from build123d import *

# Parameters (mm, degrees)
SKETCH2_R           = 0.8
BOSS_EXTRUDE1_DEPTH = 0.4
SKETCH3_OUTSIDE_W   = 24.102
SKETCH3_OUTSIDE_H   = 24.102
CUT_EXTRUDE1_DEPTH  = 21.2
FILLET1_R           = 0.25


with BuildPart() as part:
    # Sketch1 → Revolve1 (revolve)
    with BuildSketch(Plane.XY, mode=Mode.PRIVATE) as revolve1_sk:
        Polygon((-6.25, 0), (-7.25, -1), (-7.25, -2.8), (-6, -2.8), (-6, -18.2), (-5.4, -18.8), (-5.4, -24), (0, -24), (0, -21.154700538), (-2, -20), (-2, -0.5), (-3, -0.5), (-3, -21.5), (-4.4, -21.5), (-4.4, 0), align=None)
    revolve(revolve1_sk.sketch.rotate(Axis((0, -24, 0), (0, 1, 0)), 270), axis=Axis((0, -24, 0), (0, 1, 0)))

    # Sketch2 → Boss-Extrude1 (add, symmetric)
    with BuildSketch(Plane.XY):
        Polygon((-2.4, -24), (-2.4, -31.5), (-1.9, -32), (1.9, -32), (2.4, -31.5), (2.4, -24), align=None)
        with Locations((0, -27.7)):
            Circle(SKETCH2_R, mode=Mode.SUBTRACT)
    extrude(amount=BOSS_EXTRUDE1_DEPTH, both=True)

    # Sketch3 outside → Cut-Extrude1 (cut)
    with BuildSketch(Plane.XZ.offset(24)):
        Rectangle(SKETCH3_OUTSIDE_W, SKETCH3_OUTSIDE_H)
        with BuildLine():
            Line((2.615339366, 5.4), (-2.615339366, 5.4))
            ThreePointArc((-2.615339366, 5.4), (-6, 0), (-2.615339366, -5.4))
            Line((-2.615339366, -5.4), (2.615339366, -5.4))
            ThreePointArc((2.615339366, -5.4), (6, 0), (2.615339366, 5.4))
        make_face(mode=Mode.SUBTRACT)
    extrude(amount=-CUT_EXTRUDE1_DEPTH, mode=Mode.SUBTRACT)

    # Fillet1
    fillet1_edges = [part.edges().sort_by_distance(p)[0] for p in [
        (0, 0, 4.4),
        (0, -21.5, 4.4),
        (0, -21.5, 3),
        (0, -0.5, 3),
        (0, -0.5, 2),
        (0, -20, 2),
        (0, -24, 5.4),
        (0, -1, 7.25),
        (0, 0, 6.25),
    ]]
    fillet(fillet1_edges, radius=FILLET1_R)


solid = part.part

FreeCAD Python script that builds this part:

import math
import FreeCAD as App
import Part
import Sketcher
from FreeCAD import Vector
Q = App.Units.Quantity


def edges_at(feature, points):
    """Names of the edges that pass closest to the given points."""
    edges = feature.Shape.Edges
    near = lambda p: min(range(len(edges)), key=lambda i: edges[i].distToShape(Part.Vertex(*p))[0])
    return sorted({f"Edge{near(p) + 1}" for p in points})


def add_polygon(sketch, points):
    """Adds a closed chain of lines whose ends are joined by coincident constraints."""
    first, n = sketch.GeometryCount, len(points)
    for a, b in zip(points, points[1:] + points[:1]):
        sketch.addGeometry(Part.LineSegment(App.Vector(*a, 0), App.Vector(*b, 0)), False)
    for i in range(n):
        sketch.addConstraint(Sketcher.Constraint("Coincident", first + i, 2, first + (i + 1) % n, 1))

doc = App.newDocument("Part")
params = doc.addObject("Spreadsheet::Sheet", "Params")
for row, (alias, value) in enumerate([
    ("sketch1_width", "1 mm"),
    ("sketch1_height", "21 mm"),
    ("sketch1_width2", "5.4 mm"),
    ("sketch1_width3", "1.4 mm"),
    ("sketch1_height2", "1.8 mm"),
    ("revolution_angle", "360 deg"),
    ("sketch2_diameter", "1.6 mm"),
    ("sketch2_width", "3.8 mm"),
    ("sketch2_width2", "4.8 mm"),
    ("sketch2_height", "7.5 mm"),
    ("pad1_length", "0.8 mm"),
    ("sketch3_radius", "6 mm"),
    ("pocket1_length", "21.2 mm"),
    ("fillet_radius", "0.25 mm"),
], start=1):
    params.set(f"A{row}", alias)
    params.set(f"B{row}", "=" + value)
    params.setAlias(f"B{row}", alias)

body = doc.addObject("PartDesign::Body", "Body")

sketch1 = body.newObject("Sketcher::SketchObject", "Sketch")
sketch1.AttachmentSupport = (doc.getObject("XY_Plane"), [""])
sketch1.MapMode = "FlatFace"
add_polygon(sketch1, [(-6.25, 0), (-7.25, -1), (-7.25, -2.8), (-6, -2.8), (-6, -18.2), (-5.4, -18.8), (-5.4, -24), (0, -24), (0, -21.154701), (-2, -20), (-2, -0.5), (-3, -0.5), (-3, -21.5), (-4.4, -21.5), (-4.4, 0)])
sketch1.addConstraint(Sketcher.Constraint("Vertical", 1))
sketch1.addConstraint(Sketcher.Constraint("Horizontal", 2))
sketch1.addConstraint(Sketcher.Constraint("Vertical", 3))
sketch1.addConstraint(Sketcher.Constraint("Vertical", 5))
sketch1.addConstraint(Sketcher.Constraint("Horizontal", 6))
sketch1.addConstraint(Sketcher.Constraint("Vertical", 7))
sketch1.addConstraint(Sketcher.Constraint("Vertical", 9))
sketch1.addConstraint(Sketcher.Constraint("Horizontal", 10))
sketch1.addConstraint(Sketcher.Constraint("Vertical", 11))
sketch1.addConstraint(Sketcher.Constraint("Horizontal", 12))
sketch1.addConstraint(Sketcher.Constraint("Vertical", 13))
sketch1.addConstraint(Sketcher.Constraint("Horizontal", 14))
sketch1.addConstraint(Sketcher.Constraint("PointOnObject", 6, 2, -2))
sketch1.addConstraint(Sketcher.Constraint("PointOnObject", 13, 2, -1))
sketch1.addConstraint(Sketcher.Constraint("Perpendicular", 0, 4))
sketch1.addConstraint(Sketcher.Constraint("DistanceX", 10, 2, 10, 1, Q("1 mm")))
sketch1.addConstraint(Sketcher.Constraint("DistanceY", 11, 2, 11, 1, Q("21 mm")))
sketch1.addConstraint(Sketcher.Constraint("Angle", 0, Q("-135 deg")))
sketch1.addConstraint(Sketcher.Constraint("Angle", 8, Q("150 deg")))
sketch1.addConstraint(Sketcher.Constraint("DistanceX", 6, 1, 6, 2, Q("5.4 mm")))
sketch1.addConstraint(Sketcher.Constraint("DistanceX", 12, 2, 12, 1, Q("1.4 mm")))
sketch1.addConstraint(Sketcher.Constraint("DistanceY", 1, 2, 1, 1, Q("1.8 mm")))
sketch1.addConstraint(Sketcher.Constraint("DistanceY", 3, 2, 3, 1, Q("15.4 mm")))
sketch1.addConstraint(Sketcher.Constraint("DistanceY", 5, 2, 5, 1, Q("5.2 mm")))
sketch1.addConstraint(Sketcher.Constraint("DistanceY", 9, 1, 9, 2, Q("19.5 mm")))
sketch1.addConstraint(Sketcher.Constraint("DistanceY", 13, 1, 13, 2, Q("21.5 mm")))
sketch1.addConstraint(Sketcher.Constraint("DistanceY", 0, 2, -1, 1, Q("1 mm")))
sketch1.addConstraint(Sketcher.Constraint("DistanceX", 2, 2, -1, 1, Q("6 mm")))
sketch1.addConstraint(Sketcher.Constraint("DistanceX", 8, 2, -1, 1, Q("2 mm")))
sketch1.addConstraint(Sketcher.Constraint("DistanceX", 2, 1, 2, 2, Q("1.25 mm")))
sketch1.setExpression("Constraints[30]", "Params.sketch1_width")
sketch1.setExpression("Constraints[31]", "Params.sketch1_height")
sketch1.setExpression("Constraints[34]", "Params.sketch1_width2")
sketch1.setExpression("Constraints[35]", "Params.sketch1_width3")
sketch1.setExpression("Constraints[36]", "Params.sketch1_height2")
revolution = body.newObject("PartDesign::Revolution", "Revolution")
revolution.Profile = sketch1
revolution.ReferenceAxis = (sketch1, ["V_Axis"])
revolution.setExpression("Angle", "Params.revolution_angle")

sketch2 = body.newObject("Sketcher::SketchObject", "Sketch001")
sketch2.AttachmentSupport = (doc.getObject("XY_Plane"), [""])
sketch2.MapMode = "FlatFace"
add_polygon(sketch2, [(-2.4, -24), (-2.4, -31.5), (-1.9, -32), (1.9, -32), (2.4, -31.5), (2.4, -24)])
sketch2.addGeometry(Part.Circle(Vector(0, -27.7, 0), Vector(0, 0, 1), 0.8), False)
sketch2.addConstraint(Sketcher.Constraint("Vertical", 0))
sketch2.addConstraint(Sketcher.Constraint("Horizontal", 2))
sketch2.addConstraint(Sketcher.Constraint("Vertical", 4))
sketch2.addConstraint(Sketcher.Constraint("Horizontal", 5))
sketch2.addConstraint(Sketcher.Constraint("Symmetric", 0, 2, 3, 2, -2))
sketch2.addConstraint(Sketcher.Constraint("PointOnObject", 6, 3, -2))
sketch2.addConstraint(Sketcher.Constraint("Perpendicular", 1, 3))
sketch2.addConstraint(Sketcher.Constraint("Equal", 1, 3))
sketch2.addConstraint(Sketcher.Constraint("Diameter", 6, Q("1.6 mm")))
sketch2.addConstraint(Sketcher.Constraint("DistanceX", 2, 1, 2, 2, Q("3.8 mm")))
sketch2.addConstraint(Sketcher.Constraint("DistanceX", 5, 2, 5, 1, Q("4.8 mm")))
sketch2.addConstraint(Sketcher.Constraint("DistanceY", 0, 2, 0, 1, Q("7.5 mm")))
sketch2.addConstraint(Sketcher.Constraint("DistanceY", 1, 2, -1, 1, Q("32 mm")))
sketch2.addConstraint(Sketcher.Constraint("DistanceY", 6, 3, -1, 1, Q("27.7 mm")))
sketch2.setExpression("Constraints[14]", "Params.sketch2_diameter")
sketch2.setExpression("Constraints[15]", "Params.sketch2_width")
sketch2.setExpression("Constraints[16]", "Params.sketch2_width2")
sketch2.setExpression("Constraints[17]", "Params.sketch2_height")
pad1 = body.newObject("PartDesign::Pad", "Pad")
pad1.Profile = sketch2
pad1.setExpression("Length", "Params.pad1_length")
pad1.Midplane = True

sketch3 = body.newObject("Sketcher::SketchObject", "Sketch002")
sketch3.AttachmentSupport = (doc.getObject("XZ_Plane"), [""])
sketch3.MapMode = "FlatFace"
sketch3.AttachmentOffset = App.Placement(Vector(0, 0, 24), App.Rotation())
add_polygon(sketch3, [(-12.051, 12.051), (-12.051, -12.051), (12.051, -12.051), (12.051, 12.051)])
sketch3.addGeometry(Part.LineSegment(Vector(-2.615339, 5.4, 0), Vector(2.615339, 5.4, 0)), False)
sketch3.addGeometry(Part.ArcOfCircle(Part.Circle(Vector(0, 0, 0), Vector(0, 0, 1), 6), math.radians(-64.158067), math.radians(64.158067)), False)
sketch3.addGeometry(Part.LineSegment(Vector(2.615339, -5.4, 0), Vector(-2.615339, -5.4, 0)), False)
sketch3.addGeometry(Part.ArcOfCircle(Part.Circle(Vector(0, 0, 0), Vector(0, 0, 1), 6), math.radians(115.841933), math.radians(244.158067)), False)
sketch3.addConstraint(Sketcher.Constraint("Coincident", 4, 2, 5, 2))
sketch3.addConstraint(Sketcher.Constraint("Coincident", 5, 1, 6, 1))
sketch3.addConstraint(Sketcher.Constraint("Coincident", 6, 2, 7, 2))
sketch3.addConstraint(Sketcher.Constraint("Coincident", 7, 1, 4, 1))
sketch3.addConstraint(Sketcher.Constraint("Vertical", 0))
sketch3.addConstraint(Sketcher.Constraint("Horizontal", 1))
sketch3.addConstraint(Sketcher.Constraint("Vertical", 2))
sketch3.addConstraint(Sketcher.Constraint("Horizontal", 3))
sketch3.addConstraint(Sketcher.Constraint("Horizontal", 4))
sketch3.addConstraint(Sketcher.Constraint("Horizontal", 6))
sketch3.addConstraint(Sketcher.Constraint("Coincident", 5, 3, -1, 1))
sketch3.addConstraint(Sketcher.Constraint("Coincident", 7, 3, -1, 1))
sketch3.addConstraint(Sketcher.Constraint("Equal", 5, 7))
sketch3.addConstraint(Sketcher.Constraint("Symmetric", 0, 2, 2, 2, -1, 1))
sketch3.addConstraint(Sketcher.Constraint("Vertical", 4, 2, 5, 1))
sketch3.addConstraint(Sketcher.Constraint("Equal", 3, 0))
sketch3.addConstraint(Sketcher.Constraint("Radius", 5, Q("6 mm")))
sketch3.addConstraint(Sketcher.Constraint("DistanceY", -1, 1, 4, 2, Q("5.4 mm")))
sketch3.addConstraint(Sketcher.Constraint("DistanceX", 1, 1, 1, 2, Q("24.102 mm")))
sketch3.setExpression("Constraints[20]", "Params.sketch3_radius")
pocket1 = body.newObject("PartDesign::Pocket", "Pocket")
pocket1.Profile = sketch3
pocket1.setExpression("Length", "Params.pocket1_length")
doc.recompute()

fillet = body.newObject("PartDesign::Fillet", "Fillet")
fillet.Base = (pocket1, edges_at(pocket1, [
    (0, 0, 4.4),
    (0, -21.5, 4.4),
    (0, -21.5, 3),
    (0, -0.5, 3),
    (0, -0.5, 2),
    (0, -20, 2),
    (0, -24, 5.4),
    (0, -1, 7.25),
    (0, 0, 6.25),
]))
fillet.setExpression("Radius", "Params.fillet_radius")

doc.recompute()
